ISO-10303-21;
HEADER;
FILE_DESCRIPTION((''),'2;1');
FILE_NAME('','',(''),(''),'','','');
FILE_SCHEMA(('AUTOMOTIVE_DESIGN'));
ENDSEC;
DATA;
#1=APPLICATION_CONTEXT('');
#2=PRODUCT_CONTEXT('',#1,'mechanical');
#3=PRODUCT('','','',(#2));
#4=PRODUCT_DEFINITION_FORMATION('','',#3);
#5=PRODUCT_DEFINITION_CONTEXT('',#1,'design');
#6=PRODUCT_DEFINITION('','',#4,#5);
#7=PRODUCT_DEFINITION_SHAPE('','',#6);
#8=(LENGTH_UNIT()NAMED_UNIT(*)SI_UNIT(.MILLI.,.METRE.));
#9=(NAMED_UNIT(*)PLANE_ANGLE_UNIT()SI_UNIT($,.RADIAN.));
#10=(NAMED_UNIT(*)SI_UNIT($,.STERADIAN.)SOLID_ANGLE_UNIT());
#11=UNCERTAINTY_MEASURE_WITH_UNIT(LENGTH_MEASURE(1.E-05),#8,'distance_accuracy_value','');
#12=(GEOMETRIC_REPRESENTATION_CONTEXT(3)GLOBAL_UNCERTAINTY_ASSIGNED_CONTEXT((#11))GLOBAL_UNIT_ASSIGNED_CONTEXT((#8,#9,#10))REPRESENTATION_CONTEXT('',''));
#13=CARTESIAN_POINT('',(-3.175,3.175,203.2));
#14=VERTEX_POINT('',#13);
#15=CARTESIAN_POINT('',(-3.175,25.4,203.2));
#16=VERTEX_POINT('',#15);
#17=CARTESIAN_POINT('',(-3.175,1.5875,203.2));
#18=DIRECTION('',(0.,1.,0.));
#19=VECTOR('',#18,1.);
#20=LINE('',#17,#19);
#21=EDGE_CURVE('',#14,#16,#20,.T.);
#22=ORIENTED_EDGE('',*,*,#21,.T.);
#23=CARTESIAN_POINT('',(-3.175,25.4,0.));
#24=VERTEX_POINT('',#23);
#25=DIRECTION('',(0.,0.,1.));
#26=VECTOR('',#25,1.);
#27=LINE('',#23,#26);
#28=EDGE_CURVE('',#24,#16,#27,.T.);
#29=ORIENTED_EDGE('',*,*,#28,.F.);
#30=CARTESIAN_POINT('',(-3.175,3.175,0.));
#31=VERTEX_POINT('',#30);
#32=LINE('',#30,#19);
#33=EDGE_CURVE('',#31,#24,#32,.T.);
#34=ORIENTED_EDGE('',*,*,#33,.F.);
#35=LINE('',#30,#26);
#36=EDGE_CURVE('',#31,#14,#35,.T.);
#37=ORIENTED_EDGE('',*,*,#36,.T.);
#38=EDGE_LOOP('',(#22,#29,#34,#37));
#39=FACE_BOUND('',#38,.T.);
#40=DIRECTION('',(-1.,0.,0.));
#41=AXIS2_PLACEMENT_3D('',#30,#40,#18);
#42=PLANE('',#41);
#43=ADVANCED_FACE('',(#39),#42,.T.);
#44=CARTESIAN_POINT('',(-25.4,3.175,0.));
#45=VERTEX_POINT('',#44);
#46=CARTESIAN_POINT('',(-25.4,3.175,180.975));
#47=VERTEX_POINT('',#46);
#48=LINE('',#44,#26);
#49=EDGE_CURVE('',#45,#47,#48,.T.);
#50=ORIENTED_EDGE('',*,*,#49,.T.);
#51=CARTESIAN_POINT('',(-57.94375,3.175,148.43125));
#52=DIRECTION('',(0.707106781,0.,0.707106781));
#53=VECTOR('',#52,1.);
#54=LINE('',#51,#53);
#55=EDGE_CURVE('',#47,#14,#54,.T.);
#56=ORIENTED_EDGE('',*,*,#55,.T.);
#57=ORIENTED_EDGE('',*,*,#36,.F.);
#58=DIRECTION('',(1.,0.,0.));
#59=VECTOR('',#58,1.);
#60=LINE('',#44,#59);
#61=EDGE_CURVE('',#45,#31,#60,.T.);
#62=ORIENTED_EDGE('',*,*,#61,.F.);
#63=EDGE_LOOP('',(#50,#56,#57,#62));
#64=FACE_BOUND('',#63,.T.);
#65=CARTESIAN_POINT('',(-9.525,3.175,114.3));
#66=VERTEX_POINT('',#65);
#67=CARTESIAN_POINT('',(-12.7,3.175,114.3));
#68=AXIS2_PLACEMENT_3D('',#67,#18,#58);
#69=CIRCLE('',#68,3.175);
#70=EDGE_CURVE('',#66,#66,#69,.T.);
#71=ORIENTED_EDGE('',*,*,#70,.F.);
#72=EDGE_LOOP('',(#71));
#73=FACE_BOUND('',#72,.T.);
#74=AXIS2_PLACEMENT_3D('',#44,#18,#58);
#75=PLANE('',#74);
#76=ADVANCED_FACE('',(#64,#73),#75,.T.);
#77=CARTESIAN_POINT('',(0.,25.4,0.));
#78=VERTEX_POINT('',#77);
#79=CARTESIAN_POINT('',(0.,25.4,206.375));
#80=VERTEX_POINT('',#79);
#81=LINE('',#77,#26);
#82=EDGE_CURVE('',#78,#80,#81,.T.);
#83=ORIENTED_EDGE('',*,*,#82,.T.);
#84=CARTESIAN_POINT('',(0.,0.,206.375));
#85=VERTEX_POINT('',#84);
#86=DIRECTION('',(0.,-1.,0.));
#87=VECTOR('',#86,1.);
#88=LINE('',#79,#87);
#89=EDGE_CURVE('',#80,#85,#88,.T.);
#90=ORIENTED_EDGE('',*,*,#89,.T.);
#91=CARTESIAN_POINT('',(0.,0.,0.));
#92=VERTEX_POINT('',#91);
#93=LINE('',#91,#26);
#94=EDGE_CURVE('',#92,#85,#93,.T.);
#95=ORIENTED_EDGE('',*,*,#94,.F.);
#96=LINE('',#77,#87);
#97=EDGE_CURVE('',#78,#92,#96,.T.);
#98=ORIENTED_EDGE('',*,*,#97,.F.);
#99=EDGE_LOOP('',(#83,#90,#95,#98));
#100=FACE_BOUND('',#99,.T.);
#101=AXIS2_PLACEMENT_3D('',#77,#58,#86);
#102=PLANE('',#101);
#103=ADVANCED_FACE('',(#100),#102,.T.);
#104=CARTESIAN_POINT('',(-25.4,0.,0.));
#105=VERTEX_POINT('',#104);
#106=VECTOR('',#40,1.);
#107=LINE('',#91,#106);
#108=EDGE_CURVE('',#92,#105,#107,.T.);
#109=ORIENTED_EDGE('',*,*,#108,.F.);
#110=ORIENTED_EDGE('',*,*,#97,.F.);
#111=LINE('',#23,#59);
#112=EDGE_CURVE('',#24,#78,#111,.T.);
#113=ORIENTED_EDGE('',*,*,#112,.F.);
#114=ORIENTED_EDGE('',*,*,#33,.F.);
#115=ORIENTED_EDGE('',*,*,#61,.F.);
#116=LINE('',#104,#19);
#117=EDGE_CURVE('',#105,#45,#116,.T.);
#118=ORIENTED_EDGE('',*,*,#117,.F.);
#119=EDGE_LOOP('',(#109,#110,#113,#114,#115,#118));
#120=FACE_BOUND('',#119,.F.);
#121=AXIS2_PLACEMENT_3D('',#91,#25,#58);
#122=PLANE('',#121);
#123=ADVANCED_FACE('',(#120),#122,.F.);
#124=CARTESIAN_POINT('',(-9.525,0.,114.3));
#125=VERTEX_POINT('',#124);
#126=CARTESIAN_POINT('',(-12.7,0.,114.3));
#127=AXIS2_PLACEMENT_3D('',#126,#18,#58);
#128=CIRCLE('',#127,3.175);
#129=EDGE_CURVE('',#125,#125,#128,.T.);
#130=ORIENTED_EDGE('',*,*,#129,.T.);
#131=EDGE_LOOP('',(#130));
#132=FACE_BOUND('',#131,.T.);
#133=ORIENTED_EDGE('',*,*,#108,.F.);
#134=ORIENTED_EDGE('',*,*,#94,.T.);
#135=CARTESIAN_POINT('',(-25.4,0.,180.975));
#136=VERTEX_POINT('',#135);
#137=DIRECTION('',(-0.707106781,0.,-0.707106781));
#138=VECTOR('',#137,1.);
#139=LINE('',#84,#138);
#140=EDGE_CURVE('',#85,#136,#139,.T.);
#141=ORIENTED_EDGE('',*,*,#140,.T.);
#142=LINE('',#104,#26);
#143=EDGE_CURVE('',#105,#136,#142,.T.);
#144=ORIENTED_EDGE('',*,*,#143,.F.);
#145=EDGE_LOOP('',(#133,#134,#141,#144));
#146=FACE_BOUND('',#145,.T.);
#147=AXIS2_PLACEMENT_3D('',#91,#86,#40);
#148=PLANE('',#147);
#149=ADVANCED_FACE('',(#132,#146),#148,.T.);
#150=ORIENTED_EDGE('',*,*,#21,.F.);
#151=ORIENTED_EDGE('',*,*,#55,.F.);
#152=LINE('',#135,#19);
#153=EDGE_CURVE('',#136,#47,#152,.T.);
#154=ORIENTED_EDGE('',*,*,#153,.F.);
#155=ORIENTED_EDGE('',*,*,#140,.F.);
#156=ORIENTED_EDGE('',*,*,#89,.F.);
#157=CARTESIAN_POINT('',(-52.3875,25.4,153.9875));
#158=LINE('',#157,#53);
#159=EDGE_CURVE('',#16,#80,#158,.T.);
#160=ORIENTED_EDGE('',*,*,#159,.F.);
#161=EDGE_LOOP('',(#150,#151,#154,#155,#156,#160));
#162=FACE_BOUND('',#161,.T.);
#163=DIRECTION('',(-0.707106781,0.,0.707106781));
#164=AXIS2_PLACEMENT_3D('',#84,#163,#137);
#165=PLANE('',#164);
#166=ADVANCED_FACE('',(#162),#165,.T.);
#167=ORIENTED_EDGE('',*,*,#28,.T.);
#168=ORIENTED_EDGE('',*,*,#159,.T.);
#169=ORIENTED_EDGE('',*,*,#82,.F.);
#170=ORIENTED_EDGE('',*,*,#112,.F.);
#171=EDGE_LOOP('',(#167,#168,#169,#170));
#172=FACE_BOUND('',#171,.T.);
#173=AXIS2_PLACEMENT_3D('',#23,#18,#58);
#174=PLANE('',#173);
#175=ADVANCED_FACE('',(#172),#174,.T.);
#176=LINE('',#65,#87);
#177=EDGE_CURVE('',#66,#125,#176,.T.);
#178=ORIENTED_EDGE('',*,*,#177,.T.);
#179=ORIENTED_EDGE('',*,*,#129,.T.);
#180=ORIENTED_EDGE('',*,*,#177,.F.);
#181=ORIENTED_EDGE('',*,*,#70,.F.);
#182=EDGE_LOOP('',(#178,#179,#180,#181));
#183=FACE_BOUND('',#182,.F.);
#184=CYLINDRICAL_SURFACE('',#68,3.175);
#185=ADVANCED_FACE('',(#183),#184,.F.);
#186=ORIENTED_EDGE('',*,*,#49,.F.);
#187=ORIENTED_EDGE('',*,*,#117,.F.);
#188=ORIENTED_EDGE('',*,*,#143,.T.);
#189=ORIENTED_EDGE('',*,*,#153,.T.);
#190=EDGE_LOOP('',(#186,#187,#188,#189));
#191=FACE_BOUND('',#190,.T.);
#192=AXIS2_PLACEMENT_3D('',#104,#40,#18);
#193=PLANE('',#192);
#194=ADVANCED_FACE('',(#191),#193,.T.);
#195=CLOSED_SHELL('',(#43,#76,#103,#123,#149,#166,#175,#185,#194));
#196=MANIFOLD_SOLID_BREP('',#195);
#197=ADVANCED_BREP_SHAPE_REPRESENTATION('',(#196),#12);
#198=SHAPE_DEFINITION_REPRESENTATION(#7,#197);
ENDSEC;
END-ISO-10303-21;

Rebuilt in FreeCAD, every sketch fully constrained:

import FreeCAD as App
import Part
import Sketcher
from FreeCAD import Vector
Q = App.Units.Quantity


def add_polygon(sketch, points):
    """Adds a closed chain of lines whose ends are joined by coincident constraints."""
    first, n = sketch.GeometryCount, len(points)
    for a, b in zip(points, points[1:] + points[:1]):
        sketch.addGeometry(Part.LineSegment(App.Vector(*a, 0), App.Vector(*b, 0)), False)
    for i in range(n):
        sketch.addConstraint(Sketcher.Constraint("Coincident", first + i, 2, first + (i + 1) % n, 1))

doc = App.newDocument("Part")
body = doc.addObject("PartDesign::Body", "Body")

# Sketch on XY plane
sketch1 = body.newObject("Sketcher::SketchObject", "Sketch")
sketch1.AttachmentSupport = (doc.getObject("XY_Plane"), [""])
sketch1.MapMode = "FlatFace"
add_polygon(sketch1, [(-3.2, 3.2), (-25.4, 3.2), (-25.4, 0), (0, 0), (0, 25.4), (-3.2, 25.4)])  # lines 0-5
sketch1.addConstraint([
    Sketcher.Constraint("Horizontal", 0),
    Sketcher.Constraint("Vertical", 1),
    Sketcher.Constraint("Horizontal", 2),
    Sketcher.Constraint("Vertical", 3),
    Sketcher.Constraint("Horizontal", 4),
    Sketcher.Constraint("Vertical", 5),
    Sketcher.Constraint("Coincident", 2, 2, -1, 1),
    Sketcher.Constraint("Equal", 4, 1),
    Sketcher.Constraint("Equal", 2, 3),
    Sketcher.Constraint("DistanceX", 2, 1, 2, 2, Q("1 in")),
    Sketcher.Constraint("DistanceX", 4, 2, 4, 1, Q("0.125 in")),
])
pad1 = body.newObject("PartDesign::Pad", "Pad")
pad1.Profile = sketch1
pad1.Length = Q("8.125 in")

# Sketch on XZ plane
sketch2 = body.newObject("Sketcher::SketchObject", "Sketch001")
sketch2.AttachmentSupport = (doc.getObject("XZ_Plane"), [""])
sketch2.MapMode = "FlatFace"
add_polygon(sketch2, [(-25, 181), (0, 206), (-25, 206)])  # lines 0-2
sketch2.addConstraint([
    Sketcher.Constraint("Horizontal", 1),
    Sketcher.Constraint("Vertical", 2),
    Sketcher.Constraint("PointOnObject", 0, 2, -2),
    Sketcher.Constraint("Equal", 1, 2),
    Sketcher.Constraint("DistanceX", 1, 2, 1, 1, Q("1 in")),
    Sketcher.Constraint("DistanceY", -1, 1, 0, 2, Q("8.125 in")),
])
pocket1 = body.newObject("PartDesign::Pocket", "Pocket")
pocket1.Profile = sketch2
pocket1.Length = Q("7 in")

# Sketch on XZ plane
sketch3 = body.newObject("Sketcher::SketchObject", "Sketch002")
sketch3.AttachmentSupport = (doc.getObject("XZ_Plane"), [""])
sketch3.MapMode = "FlatFace"
sketch3.AttachmentOffset = App.Placement(Vector(0, 0, -0.125 * 25.4), App.Rotation())
sketch3.addGeometry(Part.Circle(Vector(-12.7, 114.3, 0), Vector(0, 0, 1), 3.2), False)
sketch3.addConstraint([
    Sketcher.Constraint("Diameter", 0, Q("0.25 in")),
    Sketcher.Constraint("DistanceY", -1, 1, 0, 3, Q("4.5 in")),
    Sketcher.Constraint("DistanceX", 0, 3, -1, 1, Q("0.5 in")),
])
pocket2 = body.newObject("PartDesign::Pocket", "Pocket001")
pocket2.Profile = sketch3
pocket2.Length = Q("1 in")
pocket2.Reversed = True

doc.recompute()
